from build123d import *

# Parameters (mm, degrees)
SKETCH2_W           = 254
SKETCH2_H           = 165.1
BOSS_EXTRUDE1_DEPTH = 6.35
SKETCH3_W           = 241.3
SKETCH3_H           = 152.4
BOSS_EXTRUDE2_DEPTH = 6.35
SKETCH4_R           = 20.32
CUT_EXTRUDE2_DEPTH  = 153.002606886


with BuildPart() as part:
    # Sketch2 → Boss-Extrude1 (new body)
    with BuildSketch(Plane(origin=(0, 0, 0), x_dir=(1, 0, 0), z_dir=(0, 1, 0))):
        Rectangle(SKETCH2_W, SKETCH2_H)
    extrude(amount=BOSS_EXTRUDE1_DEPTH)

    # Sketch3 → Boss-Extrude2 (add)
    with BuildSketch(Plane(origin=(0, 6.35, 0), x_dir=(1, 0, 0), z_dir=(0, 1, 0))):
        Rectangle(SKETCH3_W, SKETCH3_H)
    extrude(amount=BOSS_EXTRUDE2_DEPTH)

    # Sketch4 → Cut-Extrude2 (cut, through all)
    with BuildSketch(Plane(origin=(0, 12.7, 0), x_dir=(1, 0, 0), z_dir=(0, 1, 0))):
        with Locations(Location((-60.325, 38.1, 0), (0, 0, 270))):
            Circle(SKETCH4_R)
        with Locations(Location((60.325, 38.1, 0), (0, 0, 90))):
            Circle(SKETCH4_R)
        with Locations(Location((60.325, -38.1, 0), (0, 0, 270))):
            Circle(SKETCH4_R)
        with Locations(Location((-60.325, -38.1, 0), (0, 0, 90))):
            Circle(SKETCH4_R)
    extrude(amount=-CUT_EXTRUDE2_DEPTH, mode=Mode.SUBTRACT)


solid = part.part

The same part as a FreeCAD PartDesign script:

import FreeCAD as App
import Part
import Sketcher

V = App.Vector
Q = App.Units.Quantity

doc = App.newDocument("Part")
body = doc.addObject("PartDesign::Body", "Body")

# Sketch on XZ plane
sketch1 = body.newObject("Sketcher::SketchObject", "Sketch")
sketch1.AttachmentSupport = (doc.getObject("XZ_Plane"), [""])
sketch1.MapMode = "FlatFace"
sketch1.addGeometry(Part.LineSegment(V(-127, -83, 0), V(-127, 83, 0)), False)
sketch1.addGeometry(Part.LineSegment(V(-127, 83, 0), V(127, 83, 0)), False)
sketch1.addGeometry(Part.LineSegment(V(127, 83, 0), V(127, -83, 0)), False)
sketch1.addGeometry(Part.LineSegment(V(127, -83, 0), V(-127, -83, 0)), False)
sketch1.addConstraint(Sketcher.Constraint("Coincident", 0, 2, 1, 1))
sketch1.addConstraint(Sketcher.Constraint("Coincident", 1, 2, 2, 1))
sketch1.addConstraint(Sketcher.Constraint("Coincident", 2, 2, 3, 1))
sketch1.addConstraint(Sketcher.Constraint("Coincident", 3, 2, 0, 1))
sketch1.addConstraint(Sketcher.Constraint("Vertical", 0))
sketch1.addConstraint(Sketcher.Constraint("Horizontal", 1))
sketch1.addConstraint(Sketcher.Constraint("Vertical", 2))
sketch1.addConstraint(Sketcher.Constraint("Horizontal", 3))
sketch1.addConstraint(Sketcher.Constraint("Symmetric", 0, 2, 2, 2, -1, 1))
sketch1.addConstraint(Sketcher.Constraint("DistanceX", 1, 1, 1, 2, Q("10 in")))
sketch1.addConstraint(Sketcher.Constraint("DistanceY", 0, 1, 0, 2, Q("6.5 in")))
pad1 = body.newObject("PartDesign::Pad", "Pad")
pad1.Profile = sketch1
pad1.Length = Q("0.25 in")
pad1.Reversed = True

# Sketch on XZ plane
sketch2 = body.newObject("Sketcher::SketchObject", "Sketch001")
sketch2.AttachmentSupport = (doc.getObject("XZ_Plane"), [""])
sketch2.MapMode = "FlatFace"
sketch2.AttachmentOffset = App.Placement(V(0, 0, -0.25 * 25.4), App.Rotation())
sketch2.addGeometry(Part.LineSegment(V(-121, -76, 0), V(-121, 76, 0)), False)
sketch2.addGeometry(Part.LineSegment(V(-121, 76, 0), V(121, 76, 0)), False)
sketch2.addGeometry(Part.LineSegment(V(121, 76, 0), V(121, -76, 0)), False)
sketch2.addGeometry(Part.LineSegment(V(121, -76, 0), V(-121, -76, 0)), False)
sketch2.addConstraint(Sketcher.Constraint("Coincident", 0, 2, 1, 1))
sketch2.addConstraint(Sketcher.Constraint("Coincident", 1, 2, 2, 1))
sketch2.addConstraint(Sketcher.Constraint("Coincident", 2, 2, 3, 1))
sketch2.addConstraint(Sketcher.Constraint("Coincident", 3, 2, 0, 1))
sketch2.addConstraint(Sketcher.Constraint("Vertical", 0))
sketch2.addConstraint(Sketcher.Constraint("Horizontal", 1))
sketch2.addConstraint(Sketcher.Constraint("Vertical", 2))
sketch2.addConstraint(Sketcher.Constraint("Horizontal", 3))
sketch2.addConstraint(Sketcher.Constraint("Symmetric", 0, 2, 2, 2, -1, 1))
sketch2.addConstraint(Sketcher.Constraint("DistanceY", 0, 1, 0, 2, Q("6 in")))
sketch2.addConstraint(Sketcher.Constraint("DistanceX", 1, 1, 1, 2, Q("9.5 in")))
pad2 = body.newObject("PartDesign::Pad", "Pad001")
pad2.Profile = sketch2
pad2.Length = Q("0.25 in")
pad2.Reversed = True

# Sketch on XZ plane
sketch3 = body.newObject("Sketcher::SketchObject", "Sketch002")
sketch3.AttachmentSupport = (doc.getObject("XZ_Plane"), [""])
sketch3.MapMode = "FlatFace"
sketch3.AttachmentOffset = App.Placement(V(0, 0, -0.5 * 25.4), App.Rotation())
sketch3.addGeometry(Part.Circle(V(-60, -38, 0), V(0, 0, 1), 20), False)
sketch3.addGeometry(Part.Circle(V(60, -38, 0), V(0, 0, 1), 20), False)
sketch3.addGeometry(Part.Circle(V(60, 38, 0), V(0, 0, 1), 20), False)
sketch3.addGeometry(Part.Circle(V(-60, 38, 0), V(0, 0, 1), 20), False)
sketch3.addConstraint(Sketcher.Constraint("Equal", 0, 1))
sketch3.addConstraint(Sketcher.Constraint("Equal", 1, 2))
sketch3.addConstraint(Sketcher.Constraint("Equal", 2, 3))
sketch3.addConstraint(Sketcher.Constraint("Symmetric", 0, 3, 2, 3, -1, 1))
sketch3.addConstraint(Sketcher.Constraint("Symmetric", 1, 3, 3, 3, -1, 1))
sketch3.addConstraint(Sketcher.Constraint("Symmetric", 0, 3, 1, 3, -2))
sketch3.addConstraint(Sketcher.Constraint("Diameter", 0, Q("1.6 in")))
sketch3.addConstraint(Sketcher.Constraint("DistanceY", 1, 3, 2, 3, Q("3 in")))
sketch3.addConstraint(Sketcher.Constraint("DistanceX", 0, 3, 1, 3, Q("4.75 in")))
pocket1 = body.newObject("PartDesign::Pocket", "Pocket")
pocket1.Profile = sketch3
pocket1.Type = "ThroughAll"
pocket1.Reversed = True

doc.recompute()
